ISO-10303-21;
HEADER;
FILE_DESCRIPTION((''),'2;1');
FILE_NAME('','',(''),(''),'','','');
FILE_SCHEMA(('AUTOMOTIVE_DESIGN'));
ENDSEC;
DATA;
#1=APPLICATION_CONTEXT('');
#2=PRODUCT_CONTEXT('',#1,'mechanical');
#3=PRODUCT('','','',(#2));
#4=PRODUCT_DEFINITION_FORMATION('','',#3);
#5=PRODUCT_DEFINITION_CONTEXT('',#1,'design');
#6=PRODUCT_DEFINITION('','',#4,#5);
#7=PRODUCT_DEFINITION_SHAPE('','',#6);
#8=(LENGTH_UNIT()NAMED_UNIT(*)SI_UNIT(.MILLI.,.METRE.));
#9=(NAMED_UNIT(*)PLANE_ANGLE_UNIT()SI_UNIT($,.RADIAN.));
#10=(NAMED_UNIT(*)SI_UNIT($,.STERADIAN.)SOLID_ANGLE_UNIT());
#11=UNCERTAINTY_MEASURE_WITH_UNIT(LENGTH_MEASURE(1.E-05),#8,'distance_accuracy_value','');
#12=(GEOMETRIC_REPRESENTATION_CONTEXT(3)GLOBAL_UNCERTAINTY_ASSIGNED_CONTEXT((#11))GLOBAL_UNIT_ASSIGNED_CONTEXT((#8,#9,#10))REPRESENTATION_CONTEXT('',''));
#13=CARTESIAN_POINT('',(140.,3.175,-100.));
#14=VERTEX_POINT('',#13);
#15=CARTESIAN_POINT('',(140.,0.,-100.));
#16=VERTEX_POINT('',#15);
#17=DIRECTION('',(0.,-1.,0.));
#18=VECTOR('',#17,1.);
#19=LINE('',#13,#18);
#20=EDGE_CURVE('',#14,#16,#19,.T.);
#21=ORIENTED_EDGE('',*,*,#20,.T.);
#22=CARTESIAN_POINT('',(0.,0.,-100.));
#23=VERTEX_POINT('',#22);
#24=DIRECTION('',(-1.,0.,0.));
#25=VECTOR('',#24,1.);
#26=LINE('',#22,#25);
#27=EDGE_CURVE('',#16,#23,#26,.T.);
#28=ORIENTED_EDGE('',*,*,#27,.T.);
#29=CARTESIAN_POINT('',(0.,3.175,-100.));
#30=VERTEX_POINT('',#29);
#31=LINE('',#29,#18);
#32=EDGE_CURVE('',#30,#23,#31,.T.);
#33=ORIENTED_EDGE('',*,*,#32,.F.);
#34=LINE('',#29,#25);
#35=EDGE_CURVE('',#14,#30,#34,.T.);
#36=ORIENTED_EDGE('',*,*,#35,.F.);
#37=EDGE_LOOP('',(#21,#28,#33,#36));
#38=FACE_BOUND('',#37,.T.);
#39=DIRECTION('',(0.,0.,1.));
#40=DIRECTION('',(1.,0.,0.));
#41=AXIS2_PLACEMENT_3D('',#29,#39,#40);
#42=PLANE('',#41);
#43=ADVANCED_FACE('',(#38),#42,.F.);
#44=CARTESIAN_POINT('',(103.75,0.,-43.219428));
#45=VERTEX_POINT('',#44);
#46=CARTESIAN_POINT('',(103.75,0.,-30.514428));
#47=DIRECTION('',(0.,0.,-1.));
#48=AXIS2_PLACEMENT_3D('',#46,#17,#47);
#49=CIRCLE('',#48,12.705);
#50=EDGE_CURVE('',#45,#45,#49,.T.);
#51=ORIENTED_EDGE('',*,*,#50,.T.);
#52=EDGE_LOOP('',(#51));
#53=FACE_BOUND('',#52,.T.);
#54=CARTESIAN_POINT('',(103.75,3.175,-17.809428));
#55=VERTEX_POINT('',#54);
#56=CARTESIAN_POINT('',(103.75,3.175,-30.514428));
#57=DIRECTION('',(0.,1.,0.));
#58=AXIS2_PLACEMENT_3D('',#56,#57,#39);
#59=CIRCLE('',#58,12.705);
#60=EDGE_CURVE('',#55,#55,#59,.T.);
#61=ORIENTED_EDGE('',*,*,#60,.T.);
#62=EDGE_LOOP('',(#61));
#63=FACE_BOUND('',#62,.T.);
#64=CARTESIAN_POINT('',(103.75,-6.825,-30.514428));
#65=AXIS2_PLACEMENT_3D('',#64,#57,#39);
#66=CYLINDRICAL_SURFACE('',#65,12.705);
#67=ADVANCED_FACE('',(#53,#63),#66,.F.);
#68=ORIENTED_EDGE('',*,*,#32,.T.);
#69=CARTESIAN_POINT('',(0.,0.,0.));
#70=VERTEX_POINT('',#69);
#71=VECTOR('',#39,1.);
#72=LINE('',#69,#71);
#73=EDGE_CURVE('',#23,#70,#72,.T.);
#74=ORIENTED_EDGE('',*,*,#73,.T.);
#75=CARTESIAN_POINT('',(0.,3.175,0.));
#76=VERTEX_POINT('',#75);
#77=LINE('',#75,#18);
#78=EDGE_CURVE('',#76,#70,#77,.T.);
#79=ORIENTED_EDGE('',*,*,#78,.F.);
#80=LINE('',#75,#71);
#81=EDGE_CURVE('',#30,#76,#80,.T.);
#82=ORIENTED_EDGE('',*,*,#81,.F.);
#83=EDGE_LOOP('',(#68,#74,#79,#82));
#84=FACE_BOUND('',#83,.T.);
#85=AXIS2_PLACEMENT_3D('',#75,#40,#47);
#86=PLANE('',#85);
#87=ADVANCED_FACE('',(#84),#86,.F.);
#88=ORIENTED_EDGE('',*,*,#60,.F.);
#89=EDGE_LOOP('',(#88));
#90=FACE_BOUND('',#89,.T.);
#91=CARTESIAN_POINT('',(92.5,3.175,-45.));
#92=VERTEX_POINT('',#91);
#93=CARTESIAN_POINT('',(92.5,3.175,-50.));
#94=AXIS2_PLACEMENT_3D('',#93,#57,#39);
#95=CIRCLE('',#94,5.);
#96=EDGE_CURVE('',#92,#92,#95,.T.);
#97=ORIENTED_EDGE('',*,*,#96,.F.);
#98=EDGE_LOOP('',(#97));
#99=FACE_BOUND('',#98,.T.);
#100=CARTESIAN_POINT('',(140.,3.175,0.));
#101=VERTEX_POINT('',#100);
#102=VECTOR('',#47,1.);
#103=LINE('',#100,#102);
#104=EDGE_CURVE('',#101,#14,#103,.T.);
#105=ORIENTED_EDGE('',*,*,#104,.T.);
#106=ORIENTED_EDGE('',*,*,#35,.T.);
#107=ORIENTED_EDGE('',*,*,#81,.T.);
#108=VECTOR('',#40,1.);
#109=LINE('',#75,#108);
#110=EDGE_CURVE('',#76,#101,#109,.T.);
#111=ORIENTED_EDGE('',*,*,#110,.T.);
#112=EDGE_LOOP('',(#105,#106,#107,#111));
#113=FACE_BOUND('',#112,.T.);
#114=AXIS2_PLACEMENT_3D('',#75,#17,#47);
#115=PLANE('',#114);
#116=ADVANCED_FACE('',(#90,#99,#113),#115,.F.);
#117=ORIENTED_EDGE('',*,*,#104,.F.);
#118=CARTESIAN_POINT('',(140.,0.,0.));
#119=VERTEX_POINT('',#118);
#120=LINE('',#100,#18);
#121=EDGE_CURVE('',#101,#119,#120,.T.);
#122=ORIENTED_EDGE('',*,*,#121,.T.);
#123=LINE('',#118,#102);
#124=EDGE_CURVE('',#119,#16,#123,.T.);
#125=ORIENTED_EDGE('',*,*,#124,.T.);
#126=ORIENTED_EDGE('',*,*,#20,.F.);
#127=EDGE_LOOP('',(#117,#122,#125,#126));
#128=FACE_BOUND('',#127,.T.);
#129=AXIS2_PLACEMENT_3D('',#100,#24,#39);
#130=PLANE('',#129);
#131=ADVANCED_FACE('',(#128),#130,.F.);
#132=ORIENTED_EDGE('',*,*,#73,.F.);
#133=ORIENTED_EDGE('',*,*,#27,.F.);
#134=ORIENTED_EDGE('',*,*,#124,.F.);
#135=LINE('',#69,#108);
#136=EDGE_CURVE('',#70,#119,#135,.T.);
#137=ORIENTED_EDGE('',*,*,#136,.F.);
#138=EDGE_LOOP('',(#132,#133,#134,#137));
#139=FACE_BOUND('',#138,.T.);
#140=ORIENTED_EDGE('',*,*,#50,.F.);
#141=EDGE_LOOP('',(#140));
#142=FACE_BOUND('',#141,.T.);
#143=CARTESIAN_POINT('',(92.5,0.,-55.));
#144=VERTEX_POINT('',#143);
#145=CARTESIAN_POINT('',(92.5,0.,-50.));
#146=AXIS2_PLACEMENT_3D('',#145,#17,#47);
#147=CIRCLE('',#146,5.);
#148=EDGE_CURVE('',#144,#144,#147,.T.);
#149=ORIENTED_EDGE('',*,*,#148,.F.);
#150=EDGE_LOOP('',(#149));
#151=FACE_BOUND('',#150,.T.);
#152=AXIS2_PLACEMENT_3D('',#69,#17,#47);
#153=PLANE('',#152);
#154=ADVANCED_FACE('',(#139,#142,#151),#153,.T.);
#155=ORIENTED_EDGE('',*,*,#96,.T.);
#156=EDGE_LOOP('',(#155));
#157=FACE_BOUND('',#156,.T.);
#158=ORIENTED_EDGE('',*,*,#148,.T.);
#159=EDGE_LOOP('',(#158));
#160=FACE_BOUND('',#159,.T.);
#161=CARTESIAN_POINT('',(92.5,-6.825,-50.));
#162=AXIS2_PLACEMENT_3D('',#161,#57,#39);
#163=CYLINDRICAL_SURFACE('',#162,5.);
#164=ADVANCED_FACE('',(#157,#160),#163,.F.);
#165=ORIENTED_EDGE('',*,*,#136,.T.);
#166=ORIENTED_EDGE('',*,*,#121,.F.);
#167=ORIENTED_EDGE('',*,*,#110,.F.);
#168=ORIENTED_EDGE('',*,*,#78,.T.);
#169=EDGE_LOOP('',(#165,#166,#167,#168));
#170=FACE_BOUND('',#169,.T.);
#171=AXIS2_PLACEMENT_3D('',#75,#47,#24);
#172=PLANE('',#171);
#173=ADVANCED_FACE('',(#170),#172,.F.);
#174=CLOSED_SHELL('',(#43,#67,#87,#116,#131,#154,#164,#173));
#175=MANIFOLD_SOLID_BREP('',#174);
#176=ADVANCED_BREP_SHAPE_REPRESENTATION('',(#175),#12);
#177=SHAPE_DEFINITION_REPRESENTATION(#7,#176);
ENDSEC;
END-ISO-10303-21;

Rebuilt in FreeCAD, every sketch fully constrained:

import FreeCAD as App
import Part
import Sketcher

doc = App.newDocument("Part")
body = doc.addObject("PartDesign::Body", "Body")

# Sketch on XZ plane
sketch1 = body.newObject("Sketcher::SketchObject", "Sketch")
sketch1.AttachmentSupport = (doc.getObject("XZ_Plane"), [""])
sketch1.MapMode = "FlatFace"
sketch1.addGeometry(Part.LineSegment(App.Vector(0, -100, 0), App.Vector(0, 0, 0)), False)
sketch1.addGeometry(Part.LineSegment(App.Vector(0, 0, 0), App.Vector(140, 0, 0)), False)
sketch1.addGeometry(Part.LineSegment(App.Vector(140, 0, 0), App.Vector(140, -100, 0)), False)
sketch1.addGeometry(Part.LineSegment(App.Vector(140, -100, 0), App.Vector(0, -100, 0)), False)
sketch1.addConstraint(Sketcher.Constraint("Coincident", 0, 2, 1, 1))
sketch1.addConstraint(Sketcher.Constraint("Coincident", 1, 2, 2, 1))
sketch1.addConstraint(Sketcher.Constraint("Coincident", 2, 2, 3, 1))
sketch1.addConstraint(Sketcher.Constraint("Coincident", 3, 2, 0, 1))
sketch1.addConstraint(Sketcher.Constraint("Vertical", 0))
sketch1.addConstraint(Sketcher.Constraint("Horizontal", 1))
sketch1.addConstraint(Sketcher.Constraint("Vertical", 2))
sketch1.addConstraint(Sketcher.Constraint("Horizontal", 3))
sketch1.addConstraint(Sketcher.Constraint("Coincident", 0, 2, -1, 1))
sketch1.addConstraint(Sketcher.Constraint("DistanceX", 1, 1, 1, 2, 140.0))
sketch1.addConstraint(Sketcher.Constraint("DistanceY", 0, 1, 0, 2, 100.0))
pad1 = body.newObject("PartDesign::Pad", "Pad")
pad1.Profile = sketch1
pad1.Length = 3.175
pad1.Reversed = True

# Sketch on XZ plane
sketch2 = body.newObject("Sketcher::SketchObject", "Sketch001")
sketch2.AttachmentSupport = (doc.getObject("XZ_Plane"), [""])
sketch2.MapMode = "FlatFace"
sketch2.AttachmentOffset = App.Placement(App.Vector(0, 0, -3.175), App.Rotation())
sketch2.addGeometry(Part.Circle(App.Vector(104, -31, 0), App.Vector(0, 0, 1), 13), False)
sketch2.addGeometry(Part.Circle(App.Vector(92, -50, 0), App.Vector(0, 0, 1), 5), False)
sketch2.addConstraint(Sketcher.Constraint("Diameter", 1, 10.0))
sketch2.addConstraint(Sketcher.Constraint("Diameter", 0, 25.41))
sketch2.addConstraint(Sketcher.Constraint("DistanceY", 1, 3, -1, 1, 50.0))
sketch2.addConstraint(Sketcher.Constraint("DistanceX", -1, 1, 1, 3, 92.5))
sketch2.addConstraint(Sketcher.Constraint("DistanceX", -1, 1, 0, 3, 103.75))
sketch2.addConstraint(Sketcher.Constraint("DistanceY", 0, 3, -1, 1, 30.514428))
pocket1 = body.newObject("PartDesign::Pocket", "Pocket")
pocket1.Profile = sketch2
pocket1.Length = 10
pocket1.Reversed = True

doc.recompute()
